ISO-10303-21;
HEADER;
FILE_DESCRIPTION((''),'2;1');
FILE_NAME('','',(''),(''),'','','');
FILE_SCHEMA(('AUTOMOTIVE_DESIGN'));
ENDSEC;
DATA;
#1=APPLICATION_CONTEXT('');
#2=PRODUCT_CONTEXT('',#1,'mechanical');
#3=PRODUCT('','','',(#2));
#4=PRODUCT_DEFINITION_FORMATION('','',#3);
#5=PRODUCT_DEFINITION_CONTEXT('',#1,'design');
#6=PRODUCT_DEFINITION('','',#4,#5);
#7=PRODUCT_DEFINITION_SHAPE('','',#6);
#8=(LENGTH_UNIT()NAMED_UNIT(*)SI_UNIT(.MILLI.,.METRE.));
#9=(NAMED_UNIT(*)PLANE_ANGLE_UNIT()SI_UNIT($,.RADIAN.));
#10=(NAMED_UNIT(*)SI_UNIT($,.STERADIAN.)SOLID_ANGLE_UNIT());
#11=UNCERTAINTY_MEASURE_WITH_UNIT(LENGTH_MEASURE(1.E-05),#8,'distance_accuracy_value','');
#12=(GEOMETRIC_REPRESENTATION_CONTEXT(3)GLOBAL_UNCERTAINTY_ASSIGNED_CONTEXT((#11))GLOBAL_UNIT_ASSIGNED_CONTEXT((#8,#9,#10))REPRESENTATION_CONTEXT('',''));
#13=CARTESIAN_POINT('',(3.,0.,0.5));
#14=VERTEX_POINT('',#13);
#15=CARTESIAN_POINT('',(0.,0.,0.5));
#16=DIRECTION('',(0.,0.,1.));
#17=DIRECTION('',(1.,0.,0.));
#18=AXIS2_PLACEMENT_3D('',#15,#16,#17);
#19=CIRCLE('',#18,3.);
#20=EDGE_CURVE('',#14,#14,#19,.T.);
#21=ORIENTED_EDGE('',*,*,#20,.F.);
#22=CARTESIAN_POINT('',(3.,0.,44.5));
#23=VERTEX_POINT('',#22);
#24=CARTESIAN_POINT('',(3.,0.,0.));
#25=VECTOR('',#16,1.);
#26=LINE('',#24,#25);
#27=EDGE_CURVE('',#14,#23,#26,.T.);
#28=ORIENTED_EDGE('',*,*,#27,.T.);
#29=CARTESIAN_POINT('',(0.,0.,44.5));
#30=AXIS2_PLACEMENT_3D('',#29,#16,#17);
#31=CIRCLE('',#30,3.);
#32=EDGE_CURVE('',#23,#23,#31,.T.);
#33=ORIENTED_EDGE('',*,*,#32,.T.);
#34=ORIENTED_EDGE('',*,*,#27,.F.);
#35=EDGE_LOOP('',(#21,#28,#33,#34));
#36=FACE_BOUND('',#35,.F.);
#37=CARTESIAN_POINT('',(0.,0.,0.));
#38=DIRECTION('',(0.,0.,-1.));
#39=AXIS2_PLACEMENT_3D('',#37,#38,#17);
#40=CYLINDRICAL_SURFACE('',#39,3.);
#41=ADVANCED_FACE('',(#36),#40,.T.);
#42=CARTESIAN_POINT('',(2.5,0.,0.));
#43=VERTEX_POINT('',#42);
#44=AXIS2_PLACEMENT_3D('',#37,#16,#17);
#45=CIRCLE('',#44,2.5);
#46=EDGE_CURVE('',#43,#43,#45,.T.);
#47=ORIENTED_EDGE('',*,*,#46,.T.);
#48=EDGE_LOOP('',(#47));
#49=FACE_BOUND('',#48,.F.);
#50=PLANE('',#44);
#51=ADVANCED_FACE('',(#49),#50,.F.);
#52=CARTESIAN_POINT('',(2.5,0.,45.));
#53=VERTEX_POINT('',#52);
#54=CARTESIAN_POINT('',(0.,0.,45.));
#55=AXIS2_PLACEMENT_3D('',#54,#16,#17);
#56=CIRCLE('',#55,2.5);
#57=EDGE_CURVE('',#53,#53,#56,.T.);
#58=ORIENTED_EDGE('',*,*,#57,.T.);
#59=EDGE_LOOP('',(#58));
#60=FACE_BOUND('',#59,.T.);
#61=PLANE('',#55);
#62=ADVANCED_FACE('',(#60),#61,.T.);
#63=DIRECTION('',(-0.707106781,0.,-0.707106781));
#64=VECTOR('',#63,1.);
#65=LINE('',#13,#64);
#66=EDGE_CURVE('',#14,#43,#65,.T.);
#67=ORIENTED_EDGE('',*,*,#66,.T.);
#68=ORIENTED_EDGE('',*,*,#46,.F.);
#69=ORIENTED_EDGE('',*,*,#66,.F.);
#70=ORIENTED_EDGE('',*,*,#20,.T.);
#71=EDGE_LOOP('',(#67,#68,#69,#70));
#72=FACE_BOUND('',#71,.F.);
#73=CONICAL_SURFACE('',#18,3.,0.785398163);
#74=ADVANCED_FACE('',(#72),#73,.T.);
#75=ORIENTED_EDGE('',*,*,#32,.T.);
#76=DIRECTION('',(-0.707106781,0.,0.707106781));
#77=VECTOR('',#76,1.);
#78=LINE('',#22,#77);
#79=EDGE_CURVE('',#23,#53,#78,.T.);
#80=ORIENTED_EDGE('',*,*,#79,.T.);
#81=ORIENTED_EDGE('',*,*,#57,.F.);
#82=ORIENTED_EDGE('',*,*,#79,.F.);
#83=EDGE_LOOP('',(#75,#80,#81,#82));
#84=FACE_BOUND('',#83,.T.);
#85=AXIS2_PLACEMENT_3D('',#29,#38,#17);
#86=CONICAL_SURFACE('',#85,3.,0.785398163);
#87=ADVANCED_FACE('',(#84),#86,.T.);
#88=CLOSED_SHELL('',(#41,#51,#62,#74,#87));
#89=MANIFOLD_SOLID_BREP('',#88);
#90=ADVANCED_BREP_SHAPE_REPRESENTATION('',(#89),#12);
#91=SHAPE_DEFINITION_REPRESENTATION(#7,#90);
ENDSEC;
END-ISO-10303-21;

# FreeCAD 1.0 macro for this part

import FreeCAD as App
import Part
import Sketcher
from FreeCAD import Vector


def edges_at(feature, points):
    """Names of the edges that pass closest to the given points."""
    edges = feature.Shape.Edges
    near = lambda p: min(range(len(edges)), key=lambda i: edges[i].distToShape(Part.Vertex(*p))[0])
    return sorted({f"Edge{near(p) + 1}" for p in points})

doc = App.newDocument("Part")
body = doc.addObject("PartDesign::Body", "Body")

sketch1 = body.newObject("Sketcher::SketchObject", "Sketch")
sketch1.AttachmentSupport = (doc.getObject("XY_Plane"), [""])
sketch1.MapMode = "FlatFace"
sketch1.addGeometry(Part.Circle(Vector(0, 0, 0), Vector(0, 0, 1), 3), False)
sketch1.addConstraint([
    Sketcher.Constraint("Coincident", 0, 3, -1, 1),
    Sketcher.Constraint("Diameter", 0, 6.0),
])
pad1 = body.newObject("PartDesign::Pad", "Pad")
pad1.Profile = sketch1
pad1.Length = 45
doc.recompute()

chamfer = body.newObject("PartDesign::Chamfer", "Chamfer")
chamfer.Base = (pad1, edges_at(pad1, [(-3, 0, 45)]))
chamfer.Size = 0.5
doc.recompute()

chamfer2 = body.newObject("PartDesign::Chamfer", "Chamfer001")
chamfer2.Base = (chamfer, edges_at(chamfer, [(-3, 0, 0)]))
chamfer2.Size = 0.5

doc.recompute()
